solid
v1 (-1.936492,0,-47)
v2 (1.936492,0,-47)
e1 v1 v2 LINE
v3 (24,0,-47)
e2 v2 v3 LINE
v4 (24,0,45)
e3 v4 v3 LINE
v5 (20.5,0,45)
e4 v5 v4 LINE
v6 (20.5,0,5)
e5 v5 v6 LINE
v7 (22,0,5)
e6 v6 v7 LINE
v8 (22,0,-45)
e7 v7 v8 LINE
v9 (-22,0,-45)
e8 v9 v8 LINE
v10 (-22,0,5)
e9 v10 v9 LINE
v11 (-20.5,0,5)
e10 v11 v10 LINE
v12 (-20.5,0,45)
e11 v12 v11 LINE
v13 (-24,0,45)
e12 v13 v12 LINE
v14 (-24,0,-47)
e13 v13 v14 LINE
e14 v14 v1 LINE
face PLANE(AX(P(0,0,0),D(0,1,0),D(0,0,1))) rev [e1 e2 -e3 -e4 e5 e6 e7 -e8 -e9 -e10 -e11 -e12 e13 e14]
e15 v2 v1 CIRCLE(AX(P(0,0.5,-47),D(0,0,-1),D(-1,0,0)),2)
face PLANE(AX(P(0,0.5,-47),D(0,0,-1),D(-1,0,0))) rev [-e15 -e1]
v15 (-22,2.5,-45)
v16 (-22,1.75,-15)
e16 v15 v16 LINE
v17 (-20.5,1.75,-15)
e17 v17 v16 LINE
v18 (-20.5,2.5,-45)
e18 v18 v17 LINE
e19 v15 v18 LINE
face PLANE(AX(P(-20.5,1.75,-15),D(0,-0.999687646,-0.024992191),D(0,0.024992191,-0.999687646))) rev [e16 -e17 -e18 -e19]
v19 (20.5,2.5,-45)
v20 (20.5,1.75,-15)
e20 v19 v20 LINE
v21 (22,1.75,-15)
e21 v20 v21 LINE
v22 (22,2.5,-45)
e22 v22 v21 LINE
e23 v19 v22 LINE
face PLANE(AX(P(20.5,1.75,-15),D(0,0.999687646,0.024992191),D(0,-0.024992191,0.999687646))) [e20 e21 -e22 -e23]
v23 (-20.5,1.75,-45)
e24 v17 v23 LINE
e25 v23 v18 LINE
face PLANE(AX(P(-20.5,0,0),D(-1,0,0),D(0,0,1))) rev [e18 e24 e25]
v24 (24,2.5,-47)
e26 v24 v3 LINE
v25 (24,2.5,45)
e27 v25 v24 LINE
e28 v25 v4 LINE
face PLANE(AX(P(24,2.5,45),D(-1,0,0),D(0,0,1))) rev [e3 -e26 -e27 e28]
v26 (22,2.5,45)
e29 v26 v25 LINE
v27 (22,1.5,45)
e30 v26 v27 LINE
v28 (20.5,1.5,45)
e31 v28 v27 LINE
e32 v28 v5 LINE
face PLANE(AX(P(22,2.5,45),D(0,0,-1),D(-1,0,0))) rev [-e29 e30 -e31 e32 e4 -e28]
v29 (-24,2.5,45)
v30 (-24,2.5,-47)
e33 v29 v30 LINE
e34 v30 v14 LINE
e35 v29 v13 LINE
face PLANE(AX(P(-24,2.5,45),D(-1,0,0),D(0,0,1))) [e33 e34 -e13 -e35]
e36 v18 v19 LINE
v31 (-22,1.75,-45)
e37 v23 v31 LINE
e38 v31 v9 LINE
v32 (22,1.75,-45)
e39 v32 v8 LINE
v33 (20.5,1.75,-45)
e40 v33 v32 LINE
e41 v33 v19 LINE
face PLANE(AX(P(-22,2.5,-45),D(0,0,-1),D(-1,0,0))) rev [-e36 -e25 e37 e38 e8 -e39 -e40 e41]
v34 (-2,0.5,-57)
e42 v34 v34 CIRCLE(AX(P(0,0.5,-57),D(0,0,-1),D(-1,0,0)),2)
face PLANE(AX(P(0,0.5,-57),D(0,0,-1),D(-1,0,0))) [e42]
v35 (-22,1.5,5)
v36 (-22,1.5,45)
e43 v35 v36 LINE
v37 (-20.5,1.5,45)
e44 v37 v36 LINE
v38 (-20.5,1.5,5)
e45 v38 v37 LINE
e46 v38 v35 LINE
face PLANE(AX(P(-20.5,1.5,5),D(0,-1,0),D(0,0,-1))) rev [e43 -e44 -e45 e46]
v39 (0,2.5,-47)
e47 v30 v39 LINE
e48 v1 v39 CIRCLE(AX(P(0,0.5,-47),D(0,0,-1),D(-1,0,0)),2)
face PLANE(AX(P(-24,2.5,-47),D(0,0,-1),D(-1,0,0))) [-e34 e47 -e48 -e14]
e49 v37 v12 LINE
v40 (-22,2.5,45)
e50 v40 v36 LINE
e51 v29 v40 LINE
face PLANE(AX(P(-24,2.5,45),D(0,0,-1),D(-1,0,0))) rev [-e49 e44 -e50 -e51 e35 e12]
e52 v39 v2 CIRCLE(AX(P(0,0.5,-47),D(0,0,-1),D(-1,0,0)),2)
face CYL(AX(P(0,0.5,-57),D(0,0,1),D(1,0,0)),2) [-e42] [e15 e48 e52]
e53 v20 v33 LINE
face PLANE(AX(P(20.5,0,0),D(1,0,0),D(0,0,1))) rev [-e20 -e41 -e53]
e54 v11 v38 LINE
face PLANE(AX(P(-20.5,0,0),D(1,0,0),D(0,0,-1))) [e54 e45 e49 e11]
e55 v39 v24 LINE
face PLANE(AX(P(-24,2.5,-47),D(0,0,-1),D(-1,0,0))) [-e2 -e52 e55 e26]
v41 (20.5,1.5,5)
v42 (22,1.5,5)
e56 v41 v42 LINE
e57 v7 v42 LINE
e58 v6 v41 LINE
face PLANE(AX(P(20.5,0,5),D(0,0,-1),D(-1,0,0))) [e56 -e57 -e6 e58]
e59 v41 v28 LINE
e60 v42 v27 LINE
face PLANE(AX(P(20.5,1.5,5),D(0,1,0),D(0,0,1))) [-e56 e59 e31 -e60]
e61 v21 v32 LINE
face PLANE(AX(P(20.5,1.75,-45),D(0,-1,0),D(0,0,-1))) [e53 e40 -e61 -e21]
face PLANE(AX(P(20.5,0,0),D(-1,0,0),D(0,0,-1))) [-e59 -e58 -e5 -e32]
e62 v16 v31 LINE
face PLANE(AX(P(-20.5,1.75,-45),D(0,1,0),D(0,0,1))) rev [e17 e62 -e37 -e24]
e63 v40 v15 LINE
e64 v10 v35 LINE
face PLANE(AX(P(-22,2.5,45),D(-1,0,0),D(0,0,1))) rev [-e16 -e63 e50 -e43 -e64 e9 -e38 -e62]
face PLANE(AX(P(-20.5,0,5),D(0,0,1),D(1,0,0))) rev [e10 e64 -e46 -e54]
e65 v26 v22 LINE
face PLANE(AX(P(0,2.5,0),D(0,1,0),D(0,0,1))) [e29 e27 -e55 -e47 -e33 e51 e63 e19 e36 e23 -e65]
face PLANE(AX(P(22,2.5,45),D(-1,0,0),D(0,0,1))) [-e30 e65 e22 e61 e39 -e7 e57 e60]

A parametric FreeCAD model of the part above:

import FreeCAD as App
import Part
import Sketcher

doc = App.newDocument("Part")
body = doc.addObject("PartDesign::Body", "Body")

# Sketch on XZ plane
sketch1 = body.newObject("Sketcher::SketchObject", "Sketch")
sketch1.AttachmentSupport = (doc.getObject("XZ_Plane"), [""])
sketch1.MapMode = "FlatFace"
sketch1.addGeometry([
    Part.LineSegment(App.Vector(-22, 45, 0), App.Vector(-22, -45, 0)),  # 0
    Part.LineSegment(App.Vector(-22, -45, 0), App.Vector(22, -45, 0)),  # 1
    Part.LineSegment(App.Vector(22, -45, 0), App.Vector(22, 45, 0)),  # 2
    Part.LineSegment(App.Vector(22, 45, 0), App.Vector(24, 45, 0)),  # 3
    Part.LineSegment(App.Vector(24, 45, 0), App.Vector(24, -47, 0)),  # 4
    Part.LineSegment(App.Vector(24, -47, 0), App.Vector(-24, -47, 0)),  # 5
    Part.LineSegment(App.Vector(-24, -47, 0), App.Vector(-24, 45, 0)),  # 6
    Part.LineSegment(App.Vector(-24, 45, 0), App.Vector(-22, 45, 0)),  # 7
], False)
sketch1.addConstraint([
    Sketcher.Constraint("Coincident", 0, 2, 1, 1),
    Sketcher.Constraint("Coincident", 1, 2, 2, 1),
    Sketcher.Constraint("Coincident", 2, 2, 3, 1),
    Sketcher.Constraint("Coincident", 3, 2, 4, 1),
    Sketcher.Constraint("Coincident", 4, 2, 5, 1),
    Sketcher.Constraint("Coincident", 5, 2, 6, 1),
    Sketcher.Constraint("Coincident", 6, 2, 7, 1),
    Sketcher.Constraint("Coincident", 7, 2, 0, 1),
    Sketcher.Constraint("Vertical", 0),
    Sketcher.Constraint("Horizontal", 1),
    Sketcher.Constraint("Vertical", 2),
    Sketcher.Constraint("Horizontal", 3),
    Sketcher.Constraint("Vertical", 4),
    Sketcher.Constraint("Horizontal", 5),
    Sketcher.Constraint("Vertical", 6),
    Sketcher.Constraint("Horizontal", 7),
    Sketcher.Constraint("Symmetric", 0, 2, 2, 2, -1, 1),
    Sketcher.Constraint("Symmetric", 3, 2, 6, 2, -2),
    Sketcher.Constraint("DistanceX", 1, 1, 1, 2, 44.0),
    Sketcher.Constraint("DistanceX", 3, 1, 3, 2, 2.0),
    Sketcher.Constraint("DistanceY", 0, 2, 0, 1, 90.0),
    Sketcher.Constraint("DistanceY", 4, 2, 4, 1, 92.0),
])
pad1 = body.newObject("PartDesign::Pad", "Pad")
pad1.Profile = sketch1
pad1.Length = 2.5
pad1.Reversed = True

# Sketch on YZ plane
sketch2 = body.newObject("Sketcher::SketchObject", "Sketch001")
sketch2.AttachmentSupport = (doc.getObject("YZ_Plane"), [""])
sketch2.MapMode = "FlatFace"
sketch2.AttachmentOffset = App.Placement(App.Vector(0, 0, -22), App.Rotation())
sketch2.addGeometry([
    Part.LineSegment(App.Vector(1.75, -15, 0), App.Vector(1.75, -45, 0)),  # 0
    Part.LineSegment(App.Vector(1.75, -45, 0), App.Vector(2.5, -45, 0)),  # 1
    Part.LineSegment(App.Vector(2.5, -45, 0), App.Vector(1.75, -15, 0)),  # 2
    Part.LineSegment(App.Vector(1.5, 45, 0), App.Vector(0, 45, 0)),  # 3
    Part.LineSegment(App.Vector(0, 45, 0), App.Vector(0, 5, 0)),  # 4
    Part.LineSegment(App.Vector(0, 5, 0), App.Vector(1.5, 5, 0)),  # 5
    Part.LineSegment(App.Vector(1.5, 5, 0), App.Vector(1.5, 45, 0)),  # 6
], False)
sketch2.addConstraint([
    Sketcher.Constraint("Coincident", 0, 2, 1, 1),
    Sketcher.Constraint("Coincident", 1, 2, 2, 1),
    Sketcher.Constraint("Coincident", 2, 2, 0, 1),
    Sketcher.Constraint("Coincident", 3, 2, 4, 1),
    Sketcher.Constraint("Coincident", 4, 2, 5, 1),
    Sketcher.Constraint("Coincident", 5, 2, 6, 1),
    Sketcher.Constraint("Coincident", 6, 2, 3, 1),
    Sketcher.Constraint("Vertical", 0),
    Sketcher.Constraint("Horizontal", 1),
    Sketcher.Constraint("Horizontal", 3),
    Sketcher.Constraint("Vertical", 4),
    Sketcher.Constraint("Horizontal", 5),
    Sketcher.Constraint("Vertical", 6),
    Sketcher.Constraint("PointOnObject", 3, 2, -2),
    Sketcher.Constraint("DistanceY", 0, 2, 0, 1, 30.0),
    Sketcher.Constraint("DistanceY", 4, 2, 4, 1, 40.0),
    Sketcher.Constraint("DistanceX", 3, 2, 3, 1, 1.5),
    Sketcher.Constraint("DistanceY", 0, 2, -1, 1, 45.0),
    Sketcher.Constraint("DistanceY", -1, 1, 3, 2, 45.0),
    Sketcher.Constraint("DistanceX", 5, 2, 1, 2, 1.0),
    Sketcher.Constraint("DistanceX", 1, 1, 1, 2, 0.75),
])
pad2 = body.newObject("PartDesign::Pad", "Pad001")
pad2.Profile = sketch2
pad2.Length = 1.5
doc.recompute()

mirrored = body.newObject("PartDesign::Mirrored", "Mirrored")
mirrored.Originals = [pad2]
mirrored.MirrorPlane = (doc.getObject("YZ_Plane"), [""])
body.Tip = mirrored

# Sketch on XY plane
sketch3 = body.newObject("Sketcher::SketchObject", "Sketch002")
sketch3.AttachmentSupport = (doc.getObject("XY_Plane"), [""])
sketch3.MapMode = "FlatFace"
sketch3.AttachmentOffset = App.Placement(App.Vector(0, 0, -47), App.Rotation())
sketch3.addGeometry(Part.Circle(App.Vector(0, 0.5, 0), App.Vector(0, 0, 1), 2), False)
sketch3.addConstraint([
    Sketcher.Constraint("PointOnObject", 0, 3, -2),
    Sketcher.Constraint("Diameter", 0, 4.0),
    Sketcher.Constraint("DistanceY", -1, 1, 0, 3, 0.5),
])
pad3 = body.newObject("PartDesign::Pad", "Pad002")
pad3.Profile = sketch3
pad3.Length = 10
pad3.Reversed = True

doc.recompute()
